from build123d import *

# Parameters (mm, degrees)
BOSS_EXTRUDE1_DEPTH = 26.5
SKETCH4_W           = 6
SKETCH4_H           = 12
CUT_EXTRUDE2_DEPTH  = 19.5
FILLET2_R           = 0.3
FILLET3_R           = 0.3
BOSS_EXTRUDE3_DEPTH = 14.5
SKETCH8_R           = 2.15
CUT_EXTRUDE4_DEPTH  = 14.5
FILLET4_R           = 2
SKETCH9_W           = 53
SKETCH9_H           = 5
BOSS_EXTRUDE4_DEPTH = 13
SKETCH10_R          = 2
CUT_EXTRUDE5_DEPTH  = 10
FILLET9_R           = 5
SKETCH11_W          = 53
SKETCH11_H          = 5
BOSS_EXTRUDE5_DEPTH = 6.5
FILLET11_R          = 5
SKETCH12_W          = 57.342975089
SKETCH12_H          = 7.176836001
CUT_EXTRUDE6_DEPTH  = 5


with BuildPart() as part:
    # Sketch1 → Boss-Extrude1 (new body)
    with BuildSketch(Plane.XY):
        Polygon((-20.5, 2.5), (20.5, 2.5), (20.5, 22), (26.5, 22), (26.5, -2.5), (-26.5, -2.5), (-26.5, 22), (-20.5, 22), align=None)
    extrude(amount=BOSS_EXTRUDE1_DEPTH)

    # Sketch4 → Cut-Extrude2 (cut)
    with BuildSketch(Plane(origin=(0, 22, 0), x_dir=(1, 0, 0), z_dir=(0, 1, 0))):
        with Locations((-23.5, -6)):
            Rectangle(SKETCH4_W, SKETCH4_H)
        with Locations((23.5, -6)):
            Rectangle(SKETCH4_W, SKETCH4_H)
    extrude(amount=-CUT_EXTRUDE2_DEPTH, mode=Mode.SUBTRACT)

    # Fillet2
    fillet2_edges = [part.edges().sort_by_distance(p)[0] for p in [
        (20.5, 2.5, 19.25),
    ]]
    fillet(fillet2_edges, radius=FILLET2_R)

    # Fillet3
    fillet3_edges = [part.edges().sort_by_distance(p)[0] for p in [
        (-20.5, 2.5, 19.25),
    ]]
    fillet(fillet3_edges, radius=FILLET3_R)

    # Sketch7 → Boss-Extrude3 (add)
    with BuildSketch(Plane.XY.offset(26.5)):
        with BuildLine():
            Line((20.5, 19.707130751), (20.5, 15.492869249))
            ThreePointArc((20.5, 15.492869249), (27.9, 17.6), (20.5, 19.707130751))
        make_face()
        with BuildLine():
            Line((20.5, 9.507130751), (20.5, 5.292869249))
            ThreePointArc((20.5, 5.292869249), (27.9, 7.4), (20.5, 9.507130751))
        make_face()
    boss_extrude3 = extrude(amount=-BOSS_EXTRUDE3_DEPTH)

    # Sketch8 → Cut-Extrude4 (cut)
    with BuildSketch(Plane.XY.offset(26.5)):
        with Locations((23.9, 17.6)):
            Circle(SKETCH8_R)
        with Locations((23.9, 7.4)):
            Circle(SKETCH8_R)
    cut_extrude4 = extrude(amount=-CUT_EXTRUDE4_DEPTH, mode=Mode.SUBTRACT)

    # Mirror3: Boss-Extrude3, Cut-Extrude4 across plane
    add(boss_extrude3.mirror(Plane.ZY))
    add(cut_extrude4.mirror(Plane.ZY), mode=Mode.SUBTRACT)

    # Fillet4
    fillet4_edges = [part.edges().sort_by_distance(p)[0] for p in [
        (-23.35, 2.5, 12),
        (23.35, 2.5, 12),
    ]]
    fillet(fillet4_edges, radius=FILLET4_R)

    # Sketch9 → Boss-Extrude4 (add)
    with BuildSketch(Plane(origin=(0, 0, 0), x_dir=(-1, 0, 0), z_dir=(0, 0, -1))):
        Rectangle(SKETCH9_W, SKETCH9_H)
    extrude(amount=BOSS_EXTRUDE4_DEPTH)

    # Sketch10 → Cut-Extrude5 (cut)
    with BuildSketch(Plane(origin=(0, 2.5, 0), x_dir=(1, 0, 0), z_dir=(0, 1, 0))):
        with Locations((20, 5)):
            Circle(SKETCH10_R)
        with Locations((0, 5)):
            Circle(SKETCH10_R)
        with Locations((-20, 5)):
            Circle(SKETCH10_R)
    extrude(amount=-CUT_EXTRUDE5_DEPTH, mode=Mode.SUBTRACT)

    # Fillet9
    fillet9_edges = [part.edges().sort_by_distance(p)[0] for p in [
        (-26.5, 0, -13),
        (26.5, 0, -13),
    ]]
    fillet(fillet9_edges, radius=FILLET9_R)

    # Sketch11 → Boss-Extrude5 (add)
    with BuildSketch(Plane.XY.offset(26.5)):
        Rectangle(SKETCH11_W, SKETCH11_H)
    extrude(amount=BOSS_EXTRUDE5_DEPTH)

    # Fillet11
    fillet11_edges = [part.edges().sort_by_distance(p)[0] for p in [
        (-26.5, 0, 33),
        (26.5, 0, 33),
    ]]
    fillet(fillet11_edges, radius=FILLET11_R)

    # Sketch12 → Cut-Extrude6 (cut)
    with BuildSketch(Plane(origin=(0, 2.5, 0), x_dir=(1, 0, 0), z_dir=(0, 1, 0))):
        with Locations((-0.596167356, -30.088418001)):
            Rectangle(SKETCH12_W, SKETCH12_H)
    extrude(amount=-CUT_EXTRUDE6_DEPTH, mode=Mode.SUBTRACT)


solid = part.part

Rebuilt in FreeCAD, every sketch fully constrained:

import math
import FreeCAD as App
import Part
import Sketcher

V = App.Vector


def edges_at(feature, points):
    """Names of the edges that pass closest to the given points."""
    edges = feature.Shape.Edges
    near = lambda p: min(range(len(edges)), key=lambda i: edges[i].distToShape(Part.Vertex(*p))[0])
    return sorted({f"Edge{near(p) + 1}" for p in points})


def add_polygon(sketch, points):
    """Adds a closed chain of lines whose ends are joined by coincident constraints."""
    first, n = sketch.GeometryCount, len(points)
    for a, b in zip(points, points[1:] + points[:1]):
        sketch.addGeometry(Part.LineSegment(App.Vector(*a, 0), App.Vector(*b, 0)), False)
    for i in range(n):
        sketch.addConstraint(Sketcher.Constraint("Coincident", first + i, 2, first + (i + 1) % n, 1))

doc = App.newDocument("Part")
params = doc.addObject("Spreadsheet::Sheet", "Params")
for row, (alias, value) in enumerate([
    ("sketch1_width", "41 mm"),
    ("sketch1_width2", "6 mm"),
    ("sketch1_height", "19.5 mm"),
    ("sketch1_height2", "24.5 mm"),
    ("pad1_length", "26.5 mm"),
    ("sketch2_width", "6 mm"),
    ("sketch2_height", "12 mm"),
    ("pocket1_length", "19.5 mm"),
    ("fillet_radius", "0.3 mm"),
    ("fillet2_radius", "0.3 mm"),
    ("sketch3_radius", "4 mm"),
    ("pad2_length", "14.5 mm"),
    ("sketch4_diameter", "4.3 mm"),
    ("pocket2_length", "14.5 mm"),
    ("fillet3_radius", "2 mm"),
    ("sketch5_width", "53 mm"),
    ("sketch5_height", "5 mm"),
    ("pad3_length", "13 mm"),
    ("sketch6_diameter", "4 mm"),
    ("pocket3_length", "10 mm"),
    ("fillet4_radius", "5 mm"),
    ("sketch7_width", "53 mm"),
    ("sketch7_height", "5 mm"),
    ("pad4_length", "6.5 mm"),
    ("fillet5_radius", "5 mm"),
    ("pocket4_length", "5 mm"),
], start=1):
    params.set(f"A{row}", alias)
    params.set(f"B{row}", "=" + value)
    params.setAlias(f"B{row}", alias)

body = doc.addObject("PartDesign::Body", "Body")

sketch1 = doc.addObject("Sketcher::SketchObject", "Sketch")
body.addObject(sketch1)
sketch1.AttachmentSupport = (doc.XY_Plane, [""])
sketch1.MapMode = "FlatFace"
add_polygon(sketch1, [(20, 2), (-20, 2), (-20, 22), (-26, 22), (-26, -2), (26, -2), (26, 22), (20, 22)])
sketch1.addConstraint(Sketcher.Constraint("Horizontal", 0))
sketch1.addConstraint(Sketcher.Constraint("Vertical", 1))
sketch1.addConstraint(Sketcher.Constraint("Horizontal", 2))
sketch1.addConstraint(Sketcher.Constraint("Vertical", 3))
sketch1.addConstraint(Sketcher.Constraint("Horizontal", 4))
sketch1.addConstraint(Sketcher.Constraint("Vertical", 5))
sketch1.addConstraint(Sketcher.Constraint("Horizontal", 6))
sketch1.addConstraint(Sketcher.Constraint("Vertical", 7))
sketch1.addConstraint(Sketcher.Constraint("Symmetric", 2, 2, 5, 2, -2))
sketch1.addConstraint(Sketcher.Constraint("Equal", 2, 6))
sketch1.addConstraint(Sketcher.Constraint("DistanceX", 0, 2, 0, 1, 41.0))
sketch1.addConstraint(Sketcher.Constraint("DistanceX", 2, 2, 2, 1, 6.0))
sketch1.addConstraint(Sketcher.Constraint("DistanceY", 1, 1, 1, 2, 19.5))
sketch1.addConstraint(Sketcher.Constraint("DistanceY", 3, 2, 3, 1, 24.5))
sketch1.addConstraint(Sketcher.Constraint("DistanceY", -1, 1, 1, 2, 22.0))
sketch1.setExpression("Constraints[18]", "Params.sketch1_width")
sketch1.setExpression("Constraints[19]", "Params.sketch1_width2")
sketch1.setExpression("Constraints[20]", "Params.sketch1_height")
sketch1.setExpression("Constraints[21]", "Params.sketch1_height2")
pad1 = doc.addObject("PartDesign::Pad", "Pad")
body.addObject(pad1)
pad1.Profile = sketch1
pad1.setExpression("Length", "Params.pad1_length")

sketch2 = doc.addObject("Sketcher::SketchObject", "Sketch001")
body.addObject(sketch2)
sketch2.AttachmentSupport = (doc.XZ_Plane, [""])
sketch2.MapMode = "FlatFace"
sketch2.AttachmentOffset = App.Placement(V(0, 0, -22), App.Rotation())
add_polygon(sketch2, [(-26, 0), (-26, 12), (-20, 12), (-20, 0)])
add_polygon(sketch2, [(20, 0), (20, 12), (26, 12), (26, 0)])
sketch2.addConstraint(Sketcher.Constraint("Vertical", 0))
sketch2.addConstraint(Sketcher.Constraint("Horizontal", 1))
sketch2.addConstraint(Sketcher.Constraint("Vertical", 2))
sketch2.addConstraint(Sketcher.Constraint("Horizontal", 3))
sketch2.addConstraint(Sketcher.Constraint("Vertical", 4))
sketch2.addConstraint(Sketcher.Constraint("Horizontal", 5))
sketch2.addConstraint(Sketcher.Constraint("Vertical", 6))
sketch2.addConstraint(Sketcher.Constraint("Horizontal", 7))
sketch2.addConstraint(Sketcher.Constraint("Symmetric", 3, 2, 6, 2, -1, 1))
sketch2.addConstraint(Sketcher.Constraint("Symmetric", 1, 2, 4, 2, -2))
sketch2.addConstraint(Sketcher.Constraint("PointOnObject", 2, 2, -1))
sketch2.addConstraint(Sketcher.Constraint("DistanceX", 1, 1, 1, 2, 6.0))
sketch2.addConstraint(Sketcher.Constraint("DistanceY", 0, 1, 0, 2, 12.0))
sketch2.addConstraint(Sketcher.Constraint("DistanceX", 1, 2, 4, 2, 41.0))
sketch2.setExpression("Constraints[19]", "Params.sketch2_width")
sketch2.setExpression("Constraints[20]", "Params.sketch2_height")
pocket1 = doc.addObject("PartDesign::Pocket", "Pocket")
body.addObject(pocket1)
pocket1.Profile = sketch2
pocket1.setExpression("Length", "Params.pocket1_length")
pocket1.Reversed = True
doc.recompute()

fillet = doc.addObject("PartDesign::Fillet", "Fillet")
body.addObject(fillet)
fillet.Base = (pocket1, edges_at(pocket1, [(20.5, 2.5, 19.25)]))
fillet.setExpression("Radius", "Params.fillet_radius")
doc.recompute()

fillet2 = doc.addObject("PartDesign::Fillet", "Fillet001")
body.addObject(fillet2)
fillet2.Base = (fillet, edges_at(fillet, [(-20.5, 2.5, 19.25)]))
fillet2.setExpression("Radius", "Params.fillet2_radius")

sketch3 = doc.addObject("Sketcher::SketchObject", "Sketch002")
body.addObject(sketch3)
sketch3.AttachmentSupport = (doc.XY_Plane, [""])
sketch3.MapMode = "FlatFace"
sketch3.AttachmentOffset = App.Placement(V(0, 0, 26.5), App.Rotation())
sketch3.addGeometry(Part.LineSegment(V(20.5, 19.7, 0), V(20.5, 15.5, 0)), False)
sketch3.addGeometry(Part.ArcOfCircle(Part.Circle(V(23.9, 17.6, 0), V(0, 0, 1), 4), math.radians(-148), math.radians(148)), False)
sketch3.addGeometry(Part.LineSegment(V(20.5, 9.5, 0), V(20.5, 5.3, 0)), False)
sketch3.addGeometry(Part.ArcOfCircle(Part.Circle(V(23.9, 7.4, 0), V(0, 0, 1), 4), math.radians(-148), math.radians(148)), False)
sketch3.addConstraint(Sketcher.Constraint("Coincident", 0, 1, 1, 2))
sketch3.addConstraint(Sketcher.Constraint("Coincident", 1, 1, 0, 2))
sketch3.addConstraint(Sketcher.Constraint("Coincident", 2, 1, 3, 2))
sketch3.addConstraint(Sketcher.Constraint("Coincident", 3, 1, 2, 2))
sketch3.addConstraint(Sketcher.Constraint("Vertical", 0))
sketch3.addConstraint(Sketcher.Constraint("Vertical", 2))
sketch3.addConstraint(Sketcher.Constraint("Equal", 1, 3))
sketch3.addConstraint(Sketcher.Constraint("Vertical", 1, 3, 3, 3))
sketch3.addConstraint(Sketcher.Constraint("Vertical", 1, 1, 2, 1))
sketch3.addConstraint(Sketcher.Constraint("Radius", 1, 4.0))
sketch3.addConstraint(Sketcher.Constraint("DistanceX", -1, 1, 1, 3, 23.9))
sketch3.addConstraint(Sketcher.Constraint("DistanceY", -1, 1, 1, 3, 17.6))
sketch3.addConstraint(Sketcher.Constraint("DistanceY", -1, 1, 3, 3, 7.4))
sketch3.addConstraint(Sketcher.Constraint("DistanceX", -1, 1, 0, 1, 20.5))
sketch3.setExpression("Constraints[9]", "Params.sketch3_radius")
pad2 = doc.addObject("PartDesign::Pad", "Pad001")
body.addObject(pad2)
pad2.Profile = sketch3
pad2.setExpression("Length", "Params.pad2_length")
pad2.Reversed = True

sketch4 = doc.addObject("Sketcher::SketchObject", "Sketch003")
body.addObject(sketch4)
sketch4.AttachmentSupport = (doc.XY_Plane, [""])
sketch4.MapMode = "FlatFace"
sketch4.AttachmentOffset = App.Placement(V(0, 0, 26.5), App.Rotation())
sketch4.addGeometry(Part.Circle(V(23.9, 17.6, 0), V(0, 0, 1), 2.1), False)
sketch4.addGeometry(Part.Circle(V(23.9, 7.4, 0), V(0, 0, 1), 2.1), False)
sketch4.addConstraint(Sketcher.Constraint("Equal", 0, 1))
sketch4.addConstraint(Sketcher.Constraint("Vertical", 0, 3, 1, 3))
sketch4.addConstraint(Sketcher.Constraint("Diameter", 0, 4.3))
sketch4.addConstraint(Sketcher.Constraint("DistanceX", -1, 1, 0, 3, 23.9))
sketch4.addConstraint(Sketcher.Constraint("DistanceY", -1, 1, 0, 3, 17.6))
sketch4.addConstraint(Sketcher.Constraint("DistanceY", -1, 1, 1, 3, 7.4))
sketch4.setExpression("Constraints[2]", "Params.sketch4_diameter")
pocket2 = doc.addObject("PartDesign::Pocket", "Pocket001")
body.addObject(pocket2)
pocket2.Profile = sketch4
pocket2.setExpression("Length", "Params.pocket2_length")
doc.recompute()

mirrored = doc.addObject("PartDesign::Mirrored", "Mirrored")
body.addObject(mirrored)
mirrored.Originals = [pad2, pocket2]
mirrored.MirrorPlane = (doc.YZ_Plane, [""])
body.Tip = mirrored
doc.recompute()

fillet3 = doc.addObject("PartDesign::Fillet", "Fillet002")
body.addObject(fillet3)
fillet3.Base = (mirrored, edges_at(mirrored, [(-23.35, 2.5, 12), (23.35, 2.5, 12)]))
fillet3.setExpression("Radius", "Params.fillet3_radius")

sketch5 = doc.addObject("Sketcher::SketchObject", "Sketch004")
body.addObject(sketch5)
sketch5.AttachmentSupport = (doc.XY_Plane, [""])
sketch5.MapMode = "FlatFace"
add_polygon(sketch5, [(26, 2), (26, -2), (-26, -2), (-26, 2)])
sketch5.addConstraint(Sketcher.Constraint("Vertical", 0))
sketch5.addConstraint(Sketcher.Constraint("Horizontal", 1))
sketch5.addConstraint(Sketcher.Constraint("Vertical", 2))
sketch5.addConstraint(Sketcher.Constraint("Horizontal", 3))
sketch5.addConstraint(Sketcher.Constraint("Symmetric", 0, 2, 2, 2, -1, 1))
sketch5.addConstraint(Sketcher.Constraint("DistanceX", 1, 2, 1, 1, 53.0))
sketch5.addConstraint(Sketcher.Constraint("DistanceY", 0, 2, 0, 1, 5.0))
sketch5.setExpression("Constraints[9]", "Params.sketch5_width")
sketch5.setExpression("Constraints[10]", "Params.sketch5_height")
pad3 = doc.addObject("PartDesign::Pad", "Pad002")
body.addObject(pad3)
pad3.Profile = sketch5
pad3.setExpression("Length", "Params.pad3_length")
pad3.Reversed = True

sketch6 = doc.addObject("Sketcher::SketchObject", "Sketch005")
body.addObject(sketch6)
sketch6.AttachmentSupport = (doc.XZ_Plane, [""])
sketch6.MapMode = "FlatFace"
sketch6.AttachmentOffset = App.Placement(V(0, 0, -2.5), App.Rotation())
sketch6.addGeometry(Part.Circle(V(20, -5, 0), V(0, 0, 1), 2), False)
sketch6.addGeometry(Part.Circle(V(0, -5, 0), V(0, 0, 1), 2), False)
sketch6.addGeometry(Part.Circle(V(-20, -5, 0), V(0, 0, 1), 2), False)
sketch6.addConstraint(Sketcher.Constraint("Equal", 0, 1))
sketch6.addConstraint(Sketcher.Constraint("Equal", 1, 2))
sketch6.addConstraint(Sketcher.Constraint("Symmetric", 0, 3, 2, 3, -2))
sketch6.addConstraint(Sketcher.Constraint("PointOnObject", 1, 3, -2))
sketch6.addConstraint(Sketcher.Constraint("Horizontal", 0, 3, 1, 3))
sketch6.addConstraint(Sketcher.Constraint("Diameter", 0, 4.0))
sketch6.addConstraint(Sketcher.Constraint("DistanceX", -1, 1, 0, 3, 20.0))
sketch6.addConstraint(Sketcher.Constraint("DistanceY", 0, 3, -1, 1, 5.0))
sketch6.setExpression("Constraints[5]", "Params.sketch6_diameter")
pocket3 = doc.addObject("PartDesign::Pocket", "Pocket002")
body.addObject(pocket3)
pocket3.Profile = sketch6
pocket3.setExpression("Length", "Params.pocket3_length")
pocket3.Reversed = True
doc.recompute()

fillet4 = doc.addObject("PartDesign::Fillet", "Fillet003")
body.addObject(fillet4)
fillet4.Base = (pocket3, edges_at(pocket3, [(-26.5, 0, -13), (26.5, 0, -13)]))
fillet4.setExpression("Radius", "Params.fillet4_radius")

sketch7 = doc.addObject("Sketcher::SketchObject", "Sketch006")
body.addObject(sketch7)
sketch7.AttachmentSupport = (doc.XY_Plane, [""])
sketch7.MapMode = "FlatFace"
sketch7.AttachmentOffset = App.Placement(V(0, 0, 26.5), App.Rotation())
add_polygon(sketch7, [(-26, 2), (-26, -2), (26, -2), (26, 2)])
sketch7.addConstraint(Sketcher.Constraint("Vertical", 0))
sketch7.addConstraint(Sketcher.Constraint("Horizontal", 1))
sketch7.addConstraint(Sketcher.Constraint("Vertical", 2))
sketch7.addConstraint(Sketcher.Constraint("Horizontal", 3))
sketch7.addConstraint(Sketcher.Constraint("Symmetric", 0, 2, 2, 2, -1, 1))
sketch7.addConstraint(Sketcher.Constraint("DistanceX", 1, 1, 1, 2, 53.0))
sketch7.addConstraint(Sketcher.Constraint("DistanceY", 0, 2, 0, 1, 5.0))
sketch7.setExpression("Constraints[9]", "Params.sketch7_width")
sketch7.setExpression("Constraints[10]", "Params.sketch7_height")
pad4 = doc.addObject("PartDesign::Pad", "Pad003")
body.addObject(pad4)
pad4.Profile = sketch7
pad4.setExpression("Length", "Params.pad4_length")
doc.recompute()

fillet5 = doc.addObject("PartDesign::Fillet", "Fillet004")
body.addObject(fillet5)
fillet5.Base = (pad4, edges_at(pad4, [(-26.5, 0, 33), (26.5, 0, 33)]))
fillet5.setExpression("Radius", "Params.fillet5_radius")

sketch8 = doc.addObject("Sketcher::SketchObject", "Sketch007")
body.addObject(sketch8)
sketch8.AttachmentSupport = (doc.XZ_Plane, [""])
sketch8.MapMode = "FlatFace"
sketch8.AttachmentOffset = App.Placement(V(0, 0, -2.5), App.Rotation())
add_polygon(sketch8, [(-29, 27), (-29, 34), (28, 34), (28, 27)])
sketch8.addConstraint(Sketcher.Constraint("Vertical", 0))
sketch8.addConstraint(Sketcher.Constraint("Horizontal", 1))
sketch8.addConstraint(Sketcher.Constraint("Vertical", 2))
sketch8.addConstraint(Sketcher.Constraint("Horizontal", 3))
sketch8.addConstraint(Sketcher.Constraint("DistanceY", -1, 1, 2, 2, 26.5))
sketch8.addConstraint(Sketcher.Constraint("DistanceX", 1, 1, 1, 2, 57.342975))
sketch8.addConstraint(Sketcher.Constraint("DistanceY", 0, 1, 0, 2, 7.176836))
sketch8.addConstraint(Sketcher.Constraint("DistanceX", -1, 1, 1, 2, 28.07532))
pocket4 = doc.addObject("PartDesign::Pocket", "Pocket003")
body.addObject(pocket4)
pocket4.Profile = sketch8
pocket4.setExpression("Length", "Params.pocket4_length")
pocket4.Reversed = True

doc.recompute()
